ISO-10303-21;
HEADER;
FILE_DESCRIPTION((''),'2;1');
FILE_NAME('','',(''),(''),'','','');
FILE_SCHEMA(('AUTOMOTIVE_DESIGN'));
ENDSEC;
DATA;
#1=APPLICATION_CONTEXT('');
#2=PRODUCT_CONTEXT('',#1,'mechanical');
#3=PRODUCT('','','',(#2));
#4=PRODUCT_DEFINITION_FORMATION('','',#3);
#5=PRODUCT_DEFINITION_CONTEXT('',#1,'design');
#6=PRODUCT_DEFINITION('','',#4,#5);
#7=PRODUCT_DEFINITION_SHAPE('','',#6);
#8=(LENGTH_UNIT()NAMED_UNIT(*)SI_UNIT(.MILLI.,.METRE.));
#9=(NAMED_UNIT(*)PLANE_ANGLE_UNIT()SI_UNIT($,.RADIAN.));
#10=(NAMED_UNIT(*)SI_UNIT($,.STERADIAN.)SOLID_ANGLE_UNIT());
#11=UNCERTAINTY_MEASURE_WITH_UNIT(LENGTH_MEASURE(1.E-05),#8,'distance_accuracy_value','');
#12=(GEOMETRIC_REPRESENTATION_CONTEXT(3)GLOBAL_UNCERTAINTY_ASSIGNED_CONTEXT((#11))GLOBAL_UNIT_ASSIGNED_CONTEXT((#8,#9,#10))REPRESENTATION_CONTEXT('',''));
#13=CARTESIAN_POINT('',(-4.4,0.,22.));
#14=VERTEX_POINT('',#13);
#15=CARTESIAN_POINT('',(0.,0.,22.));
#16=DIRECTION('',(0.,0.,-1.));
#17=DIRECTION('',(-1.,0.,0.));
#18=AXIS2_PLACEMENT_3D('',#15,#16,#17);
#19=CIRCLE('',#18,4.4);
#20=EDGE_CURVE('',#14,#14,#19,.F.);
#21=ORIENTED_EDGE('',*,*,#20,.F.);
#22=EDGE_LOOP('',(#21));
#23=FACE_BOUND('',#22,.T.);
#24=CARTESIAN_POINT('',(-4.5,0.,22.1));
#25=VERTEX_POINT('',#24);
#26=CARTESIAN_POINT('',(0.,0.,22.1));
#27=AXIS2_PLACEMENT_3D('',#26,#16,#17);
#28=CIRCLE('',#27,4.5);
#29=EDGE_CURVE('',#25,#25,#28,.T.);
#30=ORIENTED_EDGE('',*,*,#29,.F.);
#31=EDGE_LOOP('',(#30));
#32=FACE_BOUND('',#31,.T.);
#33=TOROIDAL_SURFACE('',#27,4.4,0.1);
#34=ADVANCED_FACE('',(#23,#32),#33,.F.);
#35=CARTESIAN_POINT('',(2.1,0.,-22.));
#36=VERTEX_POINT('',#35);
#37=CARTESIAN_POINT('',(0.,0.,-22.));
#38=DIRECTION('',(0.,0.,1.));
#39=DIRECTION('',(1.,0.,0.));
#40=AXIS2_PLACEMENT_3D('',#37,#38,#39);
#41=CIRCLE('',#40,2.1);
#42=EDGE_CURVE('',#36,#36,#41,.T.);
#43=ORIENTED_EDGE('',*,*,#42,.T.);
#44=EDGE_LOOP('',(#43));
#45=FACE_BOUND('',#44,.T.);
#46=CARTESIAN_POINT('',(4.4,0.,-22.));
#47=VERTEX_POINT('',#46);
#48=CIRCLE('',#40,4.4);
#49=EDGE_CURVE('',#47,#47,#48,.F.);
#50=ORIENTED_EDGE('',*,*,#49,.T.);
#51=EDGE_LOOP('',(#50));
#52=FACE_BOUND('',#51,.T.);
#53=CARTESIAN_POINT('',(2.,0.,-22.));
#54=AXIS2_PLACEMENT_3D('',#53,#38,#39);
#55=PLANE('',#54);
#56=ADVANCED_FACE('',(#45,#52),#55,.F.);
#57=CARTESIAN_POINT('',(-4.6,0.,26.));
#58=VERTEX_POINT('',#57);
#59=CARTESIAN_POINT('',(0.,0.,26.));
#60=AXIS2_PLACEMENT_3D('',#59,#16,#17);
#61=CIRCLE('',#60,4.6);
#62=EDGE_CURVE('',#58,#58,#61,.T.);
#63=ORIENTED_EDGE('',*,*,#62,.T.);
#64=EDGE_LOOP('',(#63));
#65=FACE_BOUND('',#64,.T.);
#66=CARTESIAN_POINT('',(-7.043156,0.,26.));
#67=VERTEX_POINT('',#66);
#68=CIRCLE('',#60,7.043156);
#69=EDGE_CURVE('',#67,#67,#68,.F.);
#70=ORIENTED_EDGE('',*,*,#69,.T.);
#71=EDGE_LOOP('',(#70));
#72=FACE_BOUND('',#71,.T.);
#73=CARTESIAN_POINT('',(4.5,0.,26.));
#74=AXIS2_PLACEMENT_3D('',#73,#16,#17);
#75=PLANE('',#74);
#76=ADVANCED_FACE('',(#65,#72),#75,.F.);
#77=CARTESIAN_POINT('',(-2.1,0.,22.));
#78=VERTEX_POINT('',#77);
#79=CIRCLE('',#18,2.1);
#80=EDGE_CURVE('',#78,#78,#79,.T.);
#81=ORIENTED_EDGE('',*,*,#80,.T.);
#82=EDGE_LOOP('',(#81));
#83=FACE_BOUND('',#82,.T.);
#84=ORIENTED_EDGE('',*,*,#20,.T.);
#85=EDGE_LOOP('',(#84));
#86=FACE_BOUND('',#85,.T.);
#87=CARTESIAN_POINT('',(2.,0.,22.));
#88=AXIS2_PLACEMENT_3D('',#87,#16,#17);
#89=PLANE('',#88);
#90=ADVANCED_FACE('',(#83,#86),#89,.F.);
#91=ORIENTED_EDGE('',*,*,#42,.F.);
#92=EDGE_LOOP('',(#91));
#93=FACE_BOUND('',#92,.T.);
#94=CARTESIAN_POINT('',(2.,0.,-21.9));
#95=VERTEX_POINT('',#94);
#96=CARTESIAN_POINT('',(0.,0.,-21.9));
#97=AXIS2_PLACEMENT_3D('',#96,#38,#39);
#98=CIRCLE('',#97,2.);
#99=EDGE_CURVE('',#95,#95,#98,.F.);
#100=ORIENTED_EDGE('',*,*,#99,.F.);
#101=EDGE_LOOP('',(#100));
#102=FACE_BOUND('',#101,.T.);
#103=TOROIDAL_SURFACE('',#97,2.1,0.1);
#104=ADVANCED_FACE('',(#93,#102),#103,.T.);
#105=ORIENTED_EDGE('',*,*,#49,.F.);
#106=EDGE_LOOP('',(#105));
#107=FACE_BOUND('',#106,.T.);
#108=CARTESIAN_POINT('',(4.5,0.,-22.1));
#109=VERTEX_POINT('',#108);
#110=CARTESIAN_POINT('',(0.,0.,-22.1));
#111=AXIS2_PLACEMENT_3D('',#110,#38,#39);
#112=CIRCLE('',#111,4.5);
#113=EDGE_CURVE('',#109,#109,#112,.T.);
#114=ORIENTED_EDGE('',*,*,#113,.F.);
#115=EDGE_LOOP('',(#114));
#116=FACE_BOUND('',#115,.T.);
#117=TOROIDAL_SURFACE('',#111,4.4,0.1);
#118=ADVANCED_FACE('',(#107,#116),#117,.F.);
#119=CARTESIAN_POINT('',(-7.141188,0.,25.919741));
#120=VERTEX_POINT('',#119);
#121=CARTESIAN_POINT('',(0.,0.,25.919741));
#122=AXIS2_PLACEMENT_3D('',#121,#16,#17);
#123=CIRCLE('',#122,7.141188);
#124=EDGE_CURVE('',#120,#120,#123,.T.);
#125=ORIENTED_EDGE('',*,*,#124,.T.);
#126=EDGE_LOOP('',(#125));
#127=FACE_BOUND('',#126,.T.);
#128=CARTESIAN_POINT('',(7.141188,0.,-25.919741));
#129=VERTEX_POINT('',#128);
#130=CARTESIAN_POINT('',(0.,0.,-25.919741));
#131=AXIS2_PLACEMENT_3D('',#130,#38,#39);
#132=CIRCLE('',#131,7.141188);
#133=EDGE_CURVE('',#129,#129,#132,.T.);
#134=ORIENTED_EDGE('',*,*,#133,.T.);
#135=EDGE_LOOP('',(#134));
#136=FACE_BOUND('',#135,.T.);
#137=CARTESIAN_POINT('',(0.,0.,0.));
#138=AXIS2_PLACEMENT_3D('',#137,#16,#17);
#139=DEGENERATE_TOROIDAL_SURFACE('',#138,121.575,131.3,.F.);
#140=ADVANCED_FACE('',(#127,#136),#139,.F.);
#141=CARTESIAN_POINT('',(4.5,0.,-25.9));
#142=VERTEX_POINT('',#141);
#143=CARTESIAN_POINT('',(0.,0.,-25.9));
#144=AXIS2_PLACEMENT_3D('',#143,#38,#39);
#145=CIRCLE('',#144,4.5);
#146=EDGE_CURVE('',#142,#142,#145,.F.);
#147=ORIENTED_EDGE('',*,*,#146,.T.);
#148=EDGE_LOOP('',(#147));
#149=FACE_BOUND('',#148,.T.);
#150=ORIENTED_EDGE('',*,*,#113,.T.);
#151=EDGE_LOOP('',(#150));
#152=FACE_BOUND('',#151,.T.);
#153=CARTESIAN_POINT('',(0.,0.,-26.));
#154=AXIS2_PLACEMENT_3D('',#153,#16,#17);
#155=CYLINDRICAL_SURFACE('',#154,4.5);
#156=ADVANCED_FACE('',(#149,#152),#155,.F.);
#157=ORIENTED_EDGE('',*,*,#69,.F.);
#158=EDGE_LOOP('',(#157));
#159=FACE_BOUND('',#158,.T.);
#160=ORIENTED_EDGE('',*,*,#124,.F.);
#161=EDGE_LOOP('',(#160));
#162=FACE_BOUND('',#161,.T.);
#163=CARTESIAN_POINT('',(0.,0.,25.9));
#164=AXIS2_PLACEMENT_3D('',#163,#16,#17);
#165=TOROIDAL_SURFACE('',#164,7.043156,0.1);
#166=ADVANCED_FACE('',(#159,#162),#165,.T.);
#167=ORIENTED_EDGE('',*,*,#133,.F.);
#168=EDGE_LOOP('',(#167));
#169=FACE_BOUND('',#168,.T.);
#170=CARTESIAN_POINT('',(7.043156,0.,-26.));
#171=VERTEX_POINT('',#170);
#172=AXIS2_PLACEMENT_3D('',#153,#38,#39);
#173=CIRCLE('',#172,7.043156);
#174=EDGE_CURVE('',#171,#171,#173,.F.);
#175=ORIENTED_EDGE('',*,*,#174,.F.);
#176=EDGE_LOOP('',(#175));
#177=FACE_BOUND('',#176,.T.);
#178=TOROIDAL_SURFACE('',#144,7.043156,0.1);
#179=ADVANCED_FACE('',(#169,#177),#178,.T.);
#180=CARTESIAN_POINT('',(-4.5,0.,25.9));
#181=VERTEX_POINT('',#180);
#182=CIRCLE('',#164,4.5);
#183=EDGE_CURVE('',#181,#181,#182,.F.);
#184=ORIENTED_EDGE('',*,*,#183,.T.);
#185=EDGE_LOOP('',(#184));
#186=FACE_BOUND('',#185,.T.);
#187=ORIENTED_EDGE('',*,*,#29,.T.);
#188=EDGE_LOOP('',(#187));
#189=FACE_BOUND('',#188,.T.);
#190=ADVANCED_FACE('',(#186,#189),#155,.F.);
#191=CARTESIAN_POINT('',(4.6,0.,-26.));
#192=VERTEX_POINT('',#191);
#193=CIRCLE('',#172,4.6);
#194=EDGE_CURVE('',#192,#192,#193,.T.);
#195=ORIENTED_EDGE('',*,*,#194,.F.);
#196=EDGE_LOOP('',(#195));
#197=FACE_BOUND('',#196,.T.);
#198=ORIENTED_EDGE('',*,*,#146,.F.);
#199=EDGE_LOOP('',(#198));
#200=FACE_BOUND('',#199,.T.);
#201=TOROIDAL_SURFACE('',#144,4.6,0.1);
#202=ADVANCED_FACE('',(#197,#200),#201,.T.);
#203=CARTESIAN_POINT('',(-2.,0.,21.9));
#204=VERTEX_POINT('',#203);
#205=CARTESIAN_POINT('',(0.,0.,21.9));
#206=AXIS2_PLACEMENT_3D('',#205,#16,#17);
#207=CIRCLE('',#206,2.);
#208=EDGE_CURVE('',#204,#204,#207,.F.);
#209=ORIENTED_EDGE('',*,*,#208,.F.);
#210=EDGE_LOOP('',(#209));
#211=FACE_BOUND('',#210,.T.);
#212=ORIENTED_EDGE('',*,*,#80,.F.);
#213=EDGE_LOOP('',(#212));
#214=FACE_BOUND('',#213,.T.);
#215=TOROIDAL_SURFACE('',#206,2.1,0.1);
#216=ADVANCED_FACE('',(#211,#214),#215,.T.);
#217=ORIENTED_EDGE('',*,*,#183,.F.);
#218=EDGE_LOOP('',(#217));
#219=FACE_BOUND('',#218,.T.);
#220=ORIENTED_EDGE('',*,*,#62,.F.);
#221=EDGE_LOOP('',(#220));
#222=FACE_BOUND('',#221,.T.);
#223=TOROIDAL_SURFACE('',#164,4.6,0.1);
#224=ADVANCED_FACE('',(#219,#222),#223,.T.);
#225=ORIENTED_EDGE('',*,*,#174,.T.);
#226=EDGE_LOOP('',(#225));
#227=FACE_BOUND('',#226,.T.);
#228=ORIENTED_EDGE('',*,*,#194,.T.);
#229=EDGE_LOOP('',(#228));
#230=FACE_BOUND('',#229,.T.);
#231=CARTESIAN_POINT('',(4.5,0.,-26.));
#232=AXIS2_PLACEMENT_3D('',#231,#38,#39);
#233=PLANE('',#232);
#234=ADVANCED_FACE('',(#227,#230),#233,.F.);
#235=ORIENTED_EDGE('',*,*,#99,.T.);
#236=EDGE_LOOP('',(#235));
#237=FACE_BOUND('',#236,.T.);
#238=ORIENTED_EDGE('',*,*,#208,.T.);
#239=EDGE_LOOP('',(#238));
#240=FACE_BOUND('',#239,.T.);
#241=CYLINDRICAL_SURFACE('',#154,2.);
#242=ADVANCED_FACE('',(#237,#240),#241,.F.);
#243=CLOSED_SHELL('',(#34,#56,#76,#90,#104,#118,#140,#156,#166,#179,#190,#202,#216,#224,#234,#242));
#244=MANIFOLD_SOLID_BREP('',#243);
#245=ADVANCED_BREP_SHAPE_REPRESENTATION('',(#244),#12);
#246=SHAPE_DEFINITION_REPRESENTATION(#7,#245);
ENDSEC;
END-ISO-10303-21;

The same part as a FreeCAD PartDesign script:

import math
import FreeCAD as App
import Part
import Sketcher
Q = App.Units.Quantity


def edges_at(feature, points):
    """Names of the edges that pass closest to the given points."""
    edges = feature.Shape.Edges
    near = lambda p: min(range(len(edges)), key=lambda i: edges[i].distToShape(Part.Vertex(*p))[0])
    return sorted({f"Edge{near(p) + 1}" for p in points})

doc = App.newDocument("Part")
body = doc.addObject("PartDesign::Body", "Body")

# Sketch on XZ plane
sketch1 = body.newObject("Sketcher::SketchObject", "Sketch")
sketch1.AttachmentSupport = (doc.getObject("XZ_Plane"), [""])
sketch1.MapMode = "FlatFace"
sketch1.addGeometry([
    Part.LineSegment(App.Vector(2, -22, 0), App.Vector(2, 22, 0)),  # 0
    Part.LineSegment(App.Vector(2, 22, 0), App.Vector(4.5, 22, 0)),  # 1
    Part.LineSegment(App.Vector(4.5, 22, 0), App.Vector(4.5, 26, 0)),  # 2
    Part.LineSegment(App.Vector(4.5, 26, 0), App.Vector(7.125, 26, 0)),  # 3
    Part.ArcOfCircle(Part.Circle(App.Vector(-121.575, 0, 0), App.Vector(0, 0, 1), 131.3), math.radians(-11.421186), math.radians(11.421186)),  # 4
    Part.LineSegment(App.Vector(7.125, -26, 0), App.Vector(4.5, -26, 0)),  # 5
    Part.LineSegment(App.Vector(4.5, -26, 0), App.Vector(4.5, -22, 0)),  # 6
    Part.LineSegment(App.Vector(4.5, -22, 0), App.Vector(2, -22, 0)),  # 7
], False)
sketch1.addConstraint([
    Sketcher.Constraint("Coincident", 0, 2, 1, 1),
    Sketcher.Constraint("Coincident", 1, 2, 2, 1),
    Sketcher.Constraint("Coincident", 2, 2, 3, 1),
    Sketcher.Constraint("Coincident", 3, 2, 4, 2),
    Sketcher.Constraint("Coincident", 4, 1, 5, 1),
    Sketcher.Constraint("Coincident", 5, 2, 6, 1),
    Sketcher.Constraint("Coincident", 6, 2, 7, 1),
    Sketcher.Constraint("Coincident", 7, 2, 0, 1),
    Sketcher.Constraint("Vertical", 0),
    Sketcher.Constraint("Horizontal", 1),
    Sketcher.Constraint("Vertical", 2),
    Sketcher.Constraint("Horizontal", 3),
    Sketcher.Constraint("Horizontal", 5),
    Sketcher.Constraint("Vertical", 6),
    Sketcher.Constraint("Horizontal", 7),
    Sketcher.Constraint("Symmetric", 3, 2, 4, 1, -1),
    Sketcher.Constraint("Symmetric", 1, 2, 6, 2, -1),
    Sketcher.Constraint("Radius", 4, Q("131.3 mm")),
    Sketcher.Constraint("DistanceY", 0, 1, 0, 2, Q("44 mm")),
    Sketcher.Constraint("DistanceY", 2, 1, 2, 2, Q("4 mm")),
    Sketcher.Constraint("DistanceX", 1, 1, 1, 2, Q("2.5 mm")),
    Sketcher.Constraint("DistanceX", -1, 1, 0, 2, Q("2 mm")),
    Sketcher.Constraint("DistanceX", 3, 1, 3, 2, Q("2.625 mm")),
])
revolution = body.newObject("PartDesign::Revolution", "Revolution")
revolution.Profile = sketch1
revolution.ReferenceAxis = (sketch1, ["V_Axis"])
revolution.Angle = 360
doc.recompute()

fillet = body.newObject("PartDesign::Fillet", "Fillet")
fillet.Base = (revolution, edges_at(revolution, [
    (4.5, 0, -22),
    (2, 0, -22),
    (2, 0, 22),
    (4.5, 0, 22),
    (4.5, 0, 26),
    (7.125, 0, 26),
    (7.125, 0, -26),
    (4.5, 0, -26),
]))
fillet.Radius = 0.1

doc.recompute()
